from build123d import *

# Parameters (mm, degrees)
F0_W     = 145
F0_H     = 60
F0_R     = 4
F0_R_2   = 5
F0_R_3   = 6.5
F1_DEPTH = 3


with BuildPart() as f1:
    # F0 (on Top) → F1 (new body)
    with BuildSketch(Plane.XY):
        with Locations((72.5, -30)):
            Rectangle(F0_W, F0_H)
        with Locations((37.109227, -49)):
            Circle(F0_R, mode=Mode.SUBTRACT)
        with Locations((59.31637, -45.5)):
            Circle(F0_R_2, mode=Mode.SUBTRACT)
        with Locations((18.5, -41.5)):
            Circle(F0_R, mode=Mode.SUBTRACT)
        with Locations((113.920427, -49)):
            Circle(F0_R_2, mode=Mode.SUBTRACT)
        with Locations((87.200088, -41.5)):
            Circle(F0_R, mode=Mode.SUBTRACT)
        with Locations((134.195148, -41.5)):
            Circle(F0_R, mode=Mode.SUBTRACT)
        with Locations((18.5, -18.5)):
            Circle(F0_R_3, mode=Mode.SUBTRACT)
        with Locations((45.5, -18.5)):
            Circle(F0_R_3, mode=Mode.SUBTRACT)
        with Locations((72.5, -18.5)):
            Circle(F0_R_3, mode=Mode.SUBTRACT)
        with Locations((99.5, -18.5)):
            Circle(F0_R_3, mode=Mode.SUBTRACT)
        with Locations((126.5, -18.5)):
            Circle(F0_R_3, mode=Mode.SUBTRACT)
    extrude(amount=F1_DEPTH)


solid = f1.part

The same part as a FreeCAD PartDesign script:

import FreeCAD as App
import Part
import Sketcher


def add_polygon(sketch, points):
    """Adds a closed chain of lines whose ends are joined by coincident constraints."""
    first, n = sketch.GeometryCount, len(points)
    for a, b in zip(points, points[1:] + points[:1]):
        sketch.addGeometry(Part.LineSegment(App.Vector(*a, 0), App.Vector(*b, 0)), False)
    for i in range(n):
        sketch.addConstraint(Sketcher.Constraint("Coincident", first + i, 2, first + (i + 1) % n, 1))

doc = App.newDocument("Part")
body = doc.addObject("PartDesign::Body", "Body")

# Sketch on XY plane
sketch1 = body.newObject("Sketcher::SketchObject", "Sketch")
sketch1.AttachmentSupport = (doc.getObject("XY_Plane"), [""])
sketch1.MapMode = "FlatFace"
add_polygon(sketch1, [(0, 0), (0, -60), (145, -60), (145, 0)])  # lines 0-3
sketch1.addGeometry(Part.Circle(App.Vector(37.1, -49, 0), App.Vector(0, 0, 1), 4), False)  # 4
sketch1.addGeometry(Part.Circle(App.Vector(59.3, -45.5, 0), App.Vector(0, 0, 1), 5), False)  # 5
sketch1.addGeometry(Part.Circle(App.Vector(18.5, -41.5, 0), App.Vector(0, 0, 1), 4), False)  # 6
sketch1.addGeometry(Part.Circle(App.Vector(113.9, -49, 0), App.Vector(0, 0, 1), 5), False)  # 7
sketch1.addGeometry(Part.Circle(App.Vector(87.2, -41.5, 0), App.Vector(0, 0, 1), 4), False)  # 8
sketch1.addGeometry(Part.Circle(App.Vector(134.2, -41.5, 0), App.Vector(0, 0, 1), 4), False)  # 9
sketch1.addGeometry(Part.Circle(App.Vector(18.5, -18.5, 0), App.Vector(0, 0, 1), 6.5), False)  # 10
sketch1.addGeometry(Part.Circle(App.Vector(45.5, -18.5, 0), App.Vector(0, 0, 1), 6.5), False)  # 11
sketch1.addGeometry(Part.Circle(App.Vector(72.5, -18.5, 0), App.Vector(0, 0, 1), 6.5), False)  # 12
sketch1.addGeometry(Part.Circle(App.Vector(99.5, -18.5, 0), App.Vector(0, 0, 1), 6.5), False)  # 13
sketch1.addGeometry(Part.Circle(App.Vector(126.5, -18.5, 0), App.Vector(0, 0, 1), 6.5), False)  # 14
sketch1.addConstraint([
    Sketcher.Constraint("Vertical", 0),
    Sketcher.Constraint("Horizontal", 1),
    Sketcher.Constraint("Vertical", 2),
    Sketcher.Constraint("Horizontal", 3),
    Sketcher.Constraint("Coincident", 3, 2, -1, 1),
    Sketcher.Constraint("Equal", 4, 6),
    Sketcher.Constraint("Equal", 5, 7),
    Sketcher.Constraint("Equal", 6, 8),
    Sketcher.Constraint("Equal", 8, 9),
    Sketcher.Constraint("Equal", 10, 11),
    Sketcher.Constraint("Equal", 11, 12),
    Sketcher.Constraint("Equal", 12, 13),
    Sketcher.Constraint("Equal", 13, 14),
    Sketcher.Constraint("Horizontal", 4, 3, 7, 3),
    Sketcher.Constraint("Horizontal", 6, 3, 8, 3),
    Sketcher.Constraint("Horizontal", 8, 3, 9, 3),
    Sketcher.Constraint("Horizontal", 10, 3, 11, 3),
    Sketcher.Constraint("Horizontal", 11, 3, 12, 3),
    Sketcher.Constraint("Horizontal", 12, 3, 13, 3),
    Sketcher.Constraint("Horizontal", 13, 3, 14, 3),
    Sketcher.Constraint("Vertical", 6, 3, 10, 3),
    Sketcher.Constraint("Diameter", 4, 8.0),
    Sketcher.Constraint("Diameter", 5, 10.0),
    Sketcher.Constraint("Diameter", 10, 13.0),
    Sketcher.Constraint("DistanceX", 1, 1, 1, 2, 145.0),
    Sketcher.Constraint("DistanceY", 0, 2, 0, 1, 60.0),
    Sketcher.Constraint("DistanceY", 4, 3, -1, 1, 49.0),
    Sketcher.Constraint("DistanceY", 5, 3, 6, 3, 4.0),
    Sketcher.Constraint("DistanceY", 6, 3, 10, 3, 23.0),
    Sketcher.Constraint("DistanceX", 10, 3, 11, 3, 27.0),
    Sketcher.Constraint("DistanceX", 11, 3, 12, 3, 27.0),
    Sketcher.Constraint("DistanceX", 12, 3, 13, 3, 27.0),
    Sketcher.Constraint("DistanceX", 13, 3, 14, 3, 27.0),
    Sketcher.Constraint("DistanceY", 5, 3, -1, 1, 45.5),
    Sketcher.Constraint("DistanceX", -1, 1, 6, 3, 18.5),
    Sketcher.Constraint("DistanceX", 4, 3, 7, 3, 76.8112),
    Sketcher.Constraint("DistanceX", -1, 1, 5, 3, 59.31637),
    Sketcher.Constraint("DistanceX", 8, 3, 7, 3, 26.720339),
    Sketcher.Constraint("DistanceX", 7, 3, 9, 3, 20.274721),
    Sketcher.Constraint("DistanceX", -1, 1, 4, 3, 37.109227),
])
pad1 = body.newObject("PartDesign::Pad", "Pad")
pad1.Profile = sketch1
pad1.Length = 3

doc.recompute()
